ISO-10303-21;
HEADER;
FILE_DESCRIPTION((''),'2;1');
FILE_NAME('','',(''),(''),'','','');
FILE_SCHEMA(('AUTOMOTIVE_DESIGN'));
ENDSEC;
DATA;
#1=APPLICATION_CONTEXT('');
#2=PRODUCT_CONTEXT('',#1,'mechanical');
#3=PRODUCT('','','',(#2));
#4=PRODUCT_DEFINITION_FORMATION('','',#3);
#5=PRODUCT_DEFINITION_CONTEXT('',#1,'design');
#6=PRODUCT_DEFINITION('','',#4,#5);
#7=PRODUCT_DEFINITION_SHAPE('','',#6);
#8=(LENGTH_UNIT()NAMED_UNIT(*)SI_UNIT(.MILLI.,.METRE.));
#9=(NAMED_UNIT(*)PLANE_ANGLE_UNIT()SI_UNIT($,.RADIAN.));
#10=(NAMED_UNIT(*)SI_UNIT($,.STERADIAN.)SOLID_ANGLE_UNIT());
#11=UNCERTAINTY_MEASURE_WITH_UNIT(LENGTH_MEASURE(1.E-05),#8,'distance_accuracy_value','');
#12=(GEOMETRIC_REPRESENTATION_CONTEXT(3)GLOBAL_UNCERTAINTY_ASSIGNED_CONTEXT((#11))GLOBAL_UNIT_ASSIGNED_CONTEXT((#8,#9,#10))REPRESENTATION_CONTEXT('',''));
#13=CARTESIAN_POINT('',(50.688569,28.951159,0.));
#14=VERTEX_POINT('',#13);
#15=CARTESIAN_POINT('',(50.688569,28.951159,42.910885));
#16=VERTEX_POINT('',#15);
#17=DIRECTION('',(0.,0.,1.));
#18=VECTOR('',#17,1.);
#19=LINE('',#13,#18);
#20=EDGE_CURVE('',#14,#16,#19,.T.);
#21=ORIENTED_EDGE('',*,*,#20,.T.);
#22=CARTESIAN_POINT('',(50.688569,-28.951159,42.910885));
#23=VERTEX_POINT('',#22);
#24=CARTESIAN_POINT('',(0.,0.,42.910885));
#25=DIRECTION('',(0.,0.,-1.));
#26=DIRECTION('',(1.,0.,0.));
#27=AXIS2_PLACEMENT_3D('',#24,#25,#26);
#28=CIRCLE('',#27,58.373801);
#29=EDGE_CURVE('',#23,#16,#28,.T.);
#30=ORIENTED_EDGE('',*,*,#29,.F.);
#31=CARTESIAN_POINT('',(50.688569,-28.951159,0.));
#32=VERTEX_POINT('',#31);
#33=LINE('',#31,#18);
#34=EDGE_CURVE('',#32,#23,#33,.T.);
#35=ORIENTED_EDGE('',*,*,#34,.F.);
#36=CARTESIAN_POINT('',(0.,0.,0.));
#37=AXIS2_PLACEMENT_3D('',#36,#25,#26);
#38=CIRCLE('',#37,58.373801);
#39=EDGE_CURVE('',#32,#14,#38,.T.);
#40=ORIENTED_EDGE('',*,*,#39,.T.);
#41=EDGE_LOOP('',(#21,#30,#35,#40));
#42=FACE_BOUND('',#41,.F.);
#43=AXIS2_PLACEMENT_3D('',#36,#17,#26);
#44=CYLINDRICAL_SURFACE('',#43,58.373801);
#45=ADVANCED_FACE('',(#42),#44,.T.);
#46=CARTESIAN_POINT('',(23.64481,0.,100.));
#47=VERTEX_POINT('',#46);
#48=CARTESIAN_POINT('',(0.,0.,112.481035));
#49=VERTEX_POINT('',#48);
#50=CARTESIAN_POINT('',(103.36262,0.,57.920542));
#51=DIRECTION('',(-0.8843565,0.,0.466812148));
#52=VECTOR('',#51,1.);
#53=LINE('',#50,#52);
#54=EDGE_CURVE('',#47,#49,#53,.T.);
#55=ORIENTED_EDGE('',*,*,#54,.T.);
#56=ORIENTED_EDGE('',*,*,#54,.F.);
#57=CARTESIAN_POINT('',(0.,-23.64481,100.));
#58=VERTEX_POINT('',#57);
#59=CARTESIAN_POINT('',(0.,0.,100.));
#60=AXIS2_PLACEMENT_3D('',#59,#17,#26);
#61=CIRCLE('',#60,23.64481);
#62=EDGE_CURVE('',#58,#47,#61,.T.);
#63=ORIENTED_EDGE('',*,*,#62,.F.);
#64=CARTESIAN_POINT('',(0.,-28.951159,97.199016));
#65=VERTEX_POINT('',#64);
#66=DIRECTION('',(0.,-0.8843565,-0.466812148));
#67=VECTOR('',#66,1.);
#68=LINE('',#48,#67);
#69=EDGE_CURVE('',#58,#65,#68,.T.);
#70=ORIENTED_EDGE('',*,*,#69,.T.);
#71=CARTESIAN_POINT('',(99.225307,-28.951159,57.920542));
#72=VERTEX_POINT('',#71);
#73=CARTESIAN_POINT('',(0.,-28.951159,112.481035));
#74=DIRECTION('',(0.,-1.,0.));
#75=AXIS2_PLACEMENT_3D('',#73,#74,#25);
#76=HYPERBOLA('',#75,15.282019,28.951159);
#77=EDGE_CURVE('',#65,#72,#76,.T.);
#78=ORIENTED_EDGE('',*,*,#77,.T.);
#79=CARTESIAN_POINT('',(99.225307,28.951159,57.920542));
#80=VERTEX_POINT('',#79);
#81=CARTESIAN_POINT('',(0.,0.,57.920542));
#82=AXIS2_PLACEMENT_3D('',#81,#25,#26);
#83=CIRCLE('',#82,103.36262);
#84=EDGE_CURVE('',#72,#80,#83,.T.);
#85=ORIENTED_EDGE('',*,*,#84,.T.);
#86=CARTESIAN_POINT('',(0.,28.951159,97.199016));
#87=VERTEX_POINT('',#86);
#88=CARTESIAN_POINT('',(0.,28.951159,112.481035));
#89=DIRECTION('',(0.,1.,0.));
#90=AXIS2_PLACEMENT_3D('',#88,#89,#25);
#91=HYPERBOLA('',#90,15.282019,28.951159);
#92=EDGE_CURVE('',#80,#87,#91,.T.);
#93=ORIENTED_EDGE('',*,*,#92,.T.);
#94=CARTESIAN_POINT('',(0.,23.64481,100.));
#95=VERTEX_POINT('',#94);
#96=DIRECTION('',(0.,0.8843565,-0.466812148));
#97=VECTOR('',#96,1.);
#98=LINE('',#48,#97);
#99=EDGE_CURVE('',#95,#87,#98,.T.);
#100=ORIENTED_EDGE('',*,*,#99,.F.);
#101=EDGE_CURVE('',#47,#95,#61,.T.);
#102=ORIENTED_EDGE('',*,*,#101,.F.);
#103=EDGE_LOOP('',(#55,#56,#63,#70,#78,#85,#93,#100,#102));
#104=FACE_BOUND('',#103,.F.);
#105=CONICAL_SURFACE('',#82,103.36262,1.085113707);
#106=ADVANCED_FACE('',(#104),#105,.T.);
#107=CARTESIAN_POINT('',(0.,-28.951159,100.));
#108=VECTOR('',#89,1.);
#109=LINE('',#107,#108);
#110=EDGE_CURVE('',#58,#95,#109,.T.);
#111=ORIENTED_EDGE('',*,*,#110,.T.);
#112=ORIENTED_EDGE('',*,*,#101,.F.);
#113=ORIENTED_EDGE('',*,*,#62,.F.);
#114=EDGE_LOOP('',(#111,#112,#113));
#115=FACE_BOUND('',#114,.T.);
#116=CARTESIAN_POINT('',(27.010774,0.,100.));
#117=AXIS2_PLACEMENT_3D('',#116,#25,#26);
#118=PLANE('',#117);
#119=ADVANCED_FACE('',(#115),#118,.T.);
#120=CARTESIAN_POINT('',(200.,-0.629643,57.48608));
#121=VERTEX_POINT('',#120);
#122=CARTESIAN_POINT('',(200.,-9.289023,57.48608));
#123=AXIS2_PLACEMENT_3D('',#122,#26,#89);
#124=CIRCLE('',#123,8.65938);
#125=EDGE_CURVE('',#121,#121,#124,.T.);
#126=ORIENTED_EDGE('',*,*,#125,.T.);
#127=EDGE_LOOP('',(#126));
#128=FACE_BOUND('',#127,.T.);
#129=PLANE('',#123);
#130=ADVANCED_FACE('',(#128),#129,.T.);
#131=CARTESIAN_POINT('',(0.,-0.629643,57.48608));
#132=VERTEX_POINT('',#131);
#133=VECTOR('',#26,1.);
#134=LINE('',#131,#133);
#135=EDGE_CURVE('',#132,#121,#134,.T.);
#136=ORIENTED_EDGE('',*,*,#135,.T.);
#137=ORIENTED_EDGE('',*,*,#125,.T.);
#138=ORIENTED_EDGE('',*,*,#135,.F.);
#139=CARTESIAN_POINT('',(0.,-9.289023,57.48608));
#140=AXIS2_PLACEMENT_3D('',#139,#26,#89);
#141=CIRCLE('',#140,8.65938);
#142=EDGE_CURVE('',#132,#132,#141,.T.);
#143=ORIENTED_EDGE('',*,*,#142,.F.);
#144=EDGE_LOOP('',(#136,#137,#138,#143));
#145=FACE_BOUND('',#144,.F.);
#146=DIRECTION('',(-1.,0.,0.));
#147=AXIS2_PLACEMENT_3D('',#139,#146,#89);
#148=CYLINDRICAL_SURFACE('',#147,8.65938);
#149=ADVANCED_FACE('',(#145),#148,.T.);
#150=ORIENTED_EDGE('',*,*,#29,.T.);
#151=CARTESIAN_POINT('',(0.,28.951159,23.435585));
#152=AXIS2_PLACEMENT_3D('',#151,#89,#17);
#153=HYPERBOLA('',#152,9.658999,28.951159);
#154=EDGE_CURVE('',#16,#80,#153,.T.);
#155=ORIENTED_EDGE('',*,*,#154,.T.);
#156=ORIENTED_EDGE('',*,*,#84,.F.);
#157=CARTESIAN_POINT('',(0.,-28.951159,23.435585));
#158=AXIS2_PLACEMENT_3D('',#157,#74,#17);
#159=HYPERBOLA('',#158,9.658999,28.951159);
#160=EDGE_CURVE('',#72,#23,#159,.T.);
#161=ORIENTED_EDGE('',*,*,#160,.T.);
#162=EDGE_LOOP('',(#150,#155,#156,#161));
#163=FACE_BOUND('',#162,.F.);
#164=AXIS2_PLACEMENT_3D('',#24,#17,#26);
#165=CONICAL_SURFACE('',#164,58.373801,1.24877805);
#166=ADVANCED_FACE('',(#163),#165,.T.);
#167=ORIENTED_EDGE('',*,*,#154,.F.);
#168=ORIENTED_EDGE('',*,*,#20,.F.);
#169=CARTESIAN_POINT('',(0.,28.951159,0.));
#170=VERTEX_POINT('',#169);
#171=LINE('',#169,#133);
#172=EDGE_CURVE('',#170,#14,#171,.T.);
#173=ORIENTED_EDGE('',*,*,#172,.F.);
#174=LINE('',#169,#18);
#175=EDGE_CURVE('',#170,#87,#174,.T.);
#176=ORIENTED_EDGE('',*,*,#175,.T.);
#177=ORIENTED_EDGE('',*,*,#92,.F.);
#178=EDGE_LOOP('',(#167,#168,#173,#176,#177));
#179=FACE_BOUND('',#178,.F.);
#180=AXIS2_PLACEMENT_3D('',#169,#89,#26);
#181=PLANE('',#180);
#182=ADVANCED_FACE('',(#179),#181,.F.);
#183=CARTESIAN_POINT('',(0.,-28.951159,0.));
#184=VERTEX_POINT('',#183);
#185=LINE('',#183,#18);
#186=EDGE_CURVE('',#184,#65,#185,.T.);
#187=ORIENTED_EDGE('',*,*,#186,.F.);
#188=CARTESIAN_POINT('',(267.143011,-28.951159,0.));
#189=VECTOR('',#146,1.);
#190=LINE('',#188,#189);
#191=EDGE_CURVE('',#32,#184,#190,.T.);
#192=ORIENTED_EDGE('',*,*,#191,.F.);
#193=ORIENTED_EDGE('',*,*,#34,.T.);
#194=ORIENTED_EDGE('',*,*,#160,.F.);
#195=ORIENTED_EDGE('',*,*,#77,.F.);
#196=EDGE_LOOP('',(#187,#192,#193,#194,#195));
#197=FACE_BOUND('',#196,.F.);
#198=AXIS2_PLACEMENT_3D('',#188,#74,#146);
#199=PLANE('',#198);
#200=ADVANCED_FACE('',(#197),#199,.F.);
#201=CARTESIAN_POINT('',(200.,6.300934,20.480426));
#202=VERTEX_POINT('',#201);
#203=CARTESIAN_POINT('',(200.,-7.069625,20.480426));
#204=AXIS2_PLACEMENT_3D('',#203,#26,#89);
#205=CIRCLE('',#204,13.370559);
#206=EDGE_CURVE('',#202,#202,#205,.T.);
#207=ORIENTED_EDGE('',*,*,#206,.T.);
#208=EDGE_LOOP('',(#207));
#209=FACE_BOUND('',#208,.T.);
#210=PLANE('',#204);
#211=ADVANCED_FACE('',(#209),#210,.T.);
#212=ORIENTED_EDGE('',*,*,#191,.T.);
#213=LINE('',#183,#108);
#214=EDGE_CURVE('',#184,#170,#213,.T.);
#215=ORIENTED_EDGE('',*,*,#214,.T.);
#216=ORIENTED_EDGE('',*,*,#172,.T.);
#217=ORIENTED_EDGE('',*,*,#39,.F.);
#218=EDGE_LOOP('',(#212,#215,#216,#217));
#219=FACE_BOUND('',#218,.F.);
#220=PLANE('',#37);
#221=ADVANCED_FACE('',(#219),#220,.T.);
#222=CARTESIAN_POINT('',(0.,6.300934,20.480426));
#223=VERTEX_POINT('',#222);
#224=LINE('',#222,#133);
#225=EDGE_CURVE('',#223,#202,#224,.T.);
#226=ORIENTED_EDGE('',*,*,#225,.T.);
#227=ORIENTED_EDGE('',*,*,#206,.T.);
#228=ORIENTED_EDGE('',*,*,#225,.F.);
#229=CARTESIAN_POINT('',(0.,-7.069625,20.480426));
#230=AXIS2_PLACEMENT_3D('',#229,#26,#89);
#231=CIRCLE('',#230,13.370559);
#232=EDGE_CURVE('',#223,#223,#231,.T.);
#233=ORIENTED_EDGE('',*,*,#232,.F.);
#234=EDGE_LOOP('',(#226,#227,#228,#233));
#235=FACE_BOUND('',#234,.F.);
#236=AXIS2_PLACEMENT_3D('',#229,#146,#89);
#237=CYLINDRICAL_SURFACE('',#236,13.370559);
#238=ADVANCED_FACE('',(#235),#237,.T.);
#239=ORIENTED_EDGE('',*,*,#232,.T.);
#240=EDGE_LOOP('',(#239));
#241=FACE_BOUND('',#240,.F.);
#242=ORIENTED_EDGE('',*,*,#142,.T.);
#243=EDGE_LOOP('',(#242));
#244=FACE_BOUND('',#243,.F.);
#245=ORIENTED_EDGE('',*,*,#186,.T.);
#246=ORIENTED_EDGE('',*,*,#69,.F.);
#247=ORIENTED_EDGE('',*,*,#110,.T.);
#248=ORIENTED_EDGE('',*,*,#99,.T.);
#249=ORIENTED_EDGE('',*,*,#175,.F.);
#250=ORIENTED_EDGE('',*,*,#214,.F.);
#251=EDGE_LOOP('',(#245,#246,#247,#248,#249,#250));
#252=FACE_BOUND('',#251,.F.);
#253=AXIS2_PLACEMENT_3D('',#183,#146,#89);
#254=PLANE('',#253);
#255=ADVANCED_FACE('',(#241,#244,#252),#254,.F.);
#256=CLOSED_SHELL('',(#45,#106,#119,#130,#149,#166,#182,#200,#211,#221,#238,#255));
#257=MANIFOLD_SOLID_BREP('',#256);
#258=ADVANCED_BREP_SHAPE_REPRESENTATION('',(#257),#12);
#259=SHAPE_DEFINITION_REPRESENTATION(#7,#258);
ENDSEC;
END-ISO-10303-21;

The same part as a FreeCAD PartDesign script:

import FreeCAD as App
import Part
import Sketcher

V = App.Vector

doc = App.newDocument("Part")
body = doc.addObject("PartDesign::Body", "Body")

# Sketch on XZ plane
sketch1 = body.newObject("Sketcher::SketchObject", "Sketch")
sketch1.AttachmentSupport = (doc.getObject("XZ_Plane"), [""])
sketch1.MapMode = "FlatFace"
sketch1.addGeometry([
    Part.LineSegment(V(0, 112.481035, 0), V(0, 0, 0)),  # 0
    Part.LineSegment(V(0, 0, 0), V(58.373801, 0, 0)),  # 1
    Part.LineSegment(V(58.373801, 0, 0), V(58.373801, 42.910885, 0)),  # 2
    Part.LineSegment(V(58.373801, 42.910885, 0), V(103.36262, 57.920542, 0)),  # 3
    Part.LineSegment(V(103.36262, 57.920542, 0), V(0, 112.481035, 0)),  # 4
], False)
sketch1.addConstraint([
    Sketcher.Constraint("Coincident", 0, 2, 1, 1),
    Sketcher.Constraint("Coincident", 1, 2, 2, 1),
    Sketcher.Constraint("Coincident", 2, 2, 3, 1),
    Sketcher.Constraint("Coincident", 3, 2, 4, 1),
    Sketcher.Constraint("Coincident", 4, 2, 0, 1),
    Sketcher.Constraint("Vertical", 0),
    Sketcher.Constraint("Horizontal", 1),
    Sketcher.Constraint("Vertical", 2),
    Sketcher.Constraint("Coincident", 0, 2, -1, 1),
    Sketcher.Constraint("DistanceX", 1, 1, 1, 2, 58.373801),
    Sketcher.Constraint("DistanceY", 0, 2, 0, 1, 112.481035),
    Sketcher.Constraint("DistanceY", 2, 1, 2, 2, 42.910885),
    Sketcher.Constraint("DistanceX", -1, 1, 3, 2, 103.36262),
    Sketcher.Constraint("DistanceY", -1, 1, 3, 2, 57.920542),
])
revolution = body.newObject("PartDesign::Revolution", "Revolution")
revolution.Profile = sketch1
revolution.ReferenceAxis = (sketch1, ["V_Axis"])
revolution.Angle = 360

# Sketch on XY plane
sketch2 = body.newObject("Sketcher::SketchObject", "Sketch001")
sketch2.AttachmentSupport = (doc.getObject("XY_Plane"), [""])
sketch2.MapMode = "FlatFace"
sketch2.addGeometry([
    Part.LineSegment(V(0, -28.951159, 0), V(0, 28.951159, 0)),
    Part.LineSegment(V(0, 28.951159, 0), V(267.143011, 28.951159, 0)),
    Part.LineSegment(V(267.143011, 28.951159, 0), V(267.143011, -28.951159, 0)),
    Part.LineSegment(V(267.143011, -28.951159, 0), V(0, -28.951159, 0)),
], False)
sketch2.addConstraint([
    Sketcher.Constraint("Coincident", 0, 2, 1, 1),
    Sketcher.Constraint("Coincident", 1, 2, 2, 1),
    Sketcher.Constraint("Coincident", 2, 2, 3, 1),
    Sketcher.Constraint("Coincident", 3, 2, 0, 1),
    Sketcher.Constraint("Vertical", 0),
    Sketcher.Constraint("Horizontal", 1),
    Sketcher.Constraint("Vertical", 2),
    Sketcher.Constraint("Horizontal", 3),
    Sketcher.Constraint("Symmetric", 0, 2, 3, 2, -1, 1),
    Sketcher.Constraint("DistanceX", 1, 1, 1, 2, 267.143011),
    Sketcher.Constraint("DistanceY", 0, 1, 0, 2, 57.902318),
])
pocket1 = body.newObject("PartDesign::Pocket", "Pocket")
pocket1.Profile = sketch2
pocket1.Length = 100
pocket1.Reversed = True

# Sketch on YZ plane
sketch3 = body.newObject("Sketcher::SketchObject", "Sketch002")
sketch3.AttachmentSupport = (doc.getObject("YZ_Plane"), [""])
sketch3.MapMode = "FlatFace"
sketch3.addGeometry([
    Part.Circle(V(-9.289023, 57.48608, 0), V(0, 0, 1), 8.65938),
    Part.Circle(V(-7.069625, 20.480426, 0), V(0, 0, 1), 13.370559),
], False)
sketch3.addConstraint([
    Sketcher.Constraint("Diameter", 0, 17.31876),
    Sketcher.Constraint("Diameter", 1, 26.741118),
    Sketcher.Constraint("DistanceX", 0, 3, 1, 3, 2.219398),
    Sketcher.Constraint("DistanceY", -1, 1, 0, 3, 57.48608),
    Sketcher.Constraint("DistanceX", 0, 3, -1, 1, 9.289023),
    Sketcher.Constraint("DistanceY", -1, 1, 1, 3, 20.480426),
])
pad1 = body.newObject("PartDesign::Pad", "Pad")
pad1.Profile = sketch3
pad1.Length = 200

doc.recompute()
